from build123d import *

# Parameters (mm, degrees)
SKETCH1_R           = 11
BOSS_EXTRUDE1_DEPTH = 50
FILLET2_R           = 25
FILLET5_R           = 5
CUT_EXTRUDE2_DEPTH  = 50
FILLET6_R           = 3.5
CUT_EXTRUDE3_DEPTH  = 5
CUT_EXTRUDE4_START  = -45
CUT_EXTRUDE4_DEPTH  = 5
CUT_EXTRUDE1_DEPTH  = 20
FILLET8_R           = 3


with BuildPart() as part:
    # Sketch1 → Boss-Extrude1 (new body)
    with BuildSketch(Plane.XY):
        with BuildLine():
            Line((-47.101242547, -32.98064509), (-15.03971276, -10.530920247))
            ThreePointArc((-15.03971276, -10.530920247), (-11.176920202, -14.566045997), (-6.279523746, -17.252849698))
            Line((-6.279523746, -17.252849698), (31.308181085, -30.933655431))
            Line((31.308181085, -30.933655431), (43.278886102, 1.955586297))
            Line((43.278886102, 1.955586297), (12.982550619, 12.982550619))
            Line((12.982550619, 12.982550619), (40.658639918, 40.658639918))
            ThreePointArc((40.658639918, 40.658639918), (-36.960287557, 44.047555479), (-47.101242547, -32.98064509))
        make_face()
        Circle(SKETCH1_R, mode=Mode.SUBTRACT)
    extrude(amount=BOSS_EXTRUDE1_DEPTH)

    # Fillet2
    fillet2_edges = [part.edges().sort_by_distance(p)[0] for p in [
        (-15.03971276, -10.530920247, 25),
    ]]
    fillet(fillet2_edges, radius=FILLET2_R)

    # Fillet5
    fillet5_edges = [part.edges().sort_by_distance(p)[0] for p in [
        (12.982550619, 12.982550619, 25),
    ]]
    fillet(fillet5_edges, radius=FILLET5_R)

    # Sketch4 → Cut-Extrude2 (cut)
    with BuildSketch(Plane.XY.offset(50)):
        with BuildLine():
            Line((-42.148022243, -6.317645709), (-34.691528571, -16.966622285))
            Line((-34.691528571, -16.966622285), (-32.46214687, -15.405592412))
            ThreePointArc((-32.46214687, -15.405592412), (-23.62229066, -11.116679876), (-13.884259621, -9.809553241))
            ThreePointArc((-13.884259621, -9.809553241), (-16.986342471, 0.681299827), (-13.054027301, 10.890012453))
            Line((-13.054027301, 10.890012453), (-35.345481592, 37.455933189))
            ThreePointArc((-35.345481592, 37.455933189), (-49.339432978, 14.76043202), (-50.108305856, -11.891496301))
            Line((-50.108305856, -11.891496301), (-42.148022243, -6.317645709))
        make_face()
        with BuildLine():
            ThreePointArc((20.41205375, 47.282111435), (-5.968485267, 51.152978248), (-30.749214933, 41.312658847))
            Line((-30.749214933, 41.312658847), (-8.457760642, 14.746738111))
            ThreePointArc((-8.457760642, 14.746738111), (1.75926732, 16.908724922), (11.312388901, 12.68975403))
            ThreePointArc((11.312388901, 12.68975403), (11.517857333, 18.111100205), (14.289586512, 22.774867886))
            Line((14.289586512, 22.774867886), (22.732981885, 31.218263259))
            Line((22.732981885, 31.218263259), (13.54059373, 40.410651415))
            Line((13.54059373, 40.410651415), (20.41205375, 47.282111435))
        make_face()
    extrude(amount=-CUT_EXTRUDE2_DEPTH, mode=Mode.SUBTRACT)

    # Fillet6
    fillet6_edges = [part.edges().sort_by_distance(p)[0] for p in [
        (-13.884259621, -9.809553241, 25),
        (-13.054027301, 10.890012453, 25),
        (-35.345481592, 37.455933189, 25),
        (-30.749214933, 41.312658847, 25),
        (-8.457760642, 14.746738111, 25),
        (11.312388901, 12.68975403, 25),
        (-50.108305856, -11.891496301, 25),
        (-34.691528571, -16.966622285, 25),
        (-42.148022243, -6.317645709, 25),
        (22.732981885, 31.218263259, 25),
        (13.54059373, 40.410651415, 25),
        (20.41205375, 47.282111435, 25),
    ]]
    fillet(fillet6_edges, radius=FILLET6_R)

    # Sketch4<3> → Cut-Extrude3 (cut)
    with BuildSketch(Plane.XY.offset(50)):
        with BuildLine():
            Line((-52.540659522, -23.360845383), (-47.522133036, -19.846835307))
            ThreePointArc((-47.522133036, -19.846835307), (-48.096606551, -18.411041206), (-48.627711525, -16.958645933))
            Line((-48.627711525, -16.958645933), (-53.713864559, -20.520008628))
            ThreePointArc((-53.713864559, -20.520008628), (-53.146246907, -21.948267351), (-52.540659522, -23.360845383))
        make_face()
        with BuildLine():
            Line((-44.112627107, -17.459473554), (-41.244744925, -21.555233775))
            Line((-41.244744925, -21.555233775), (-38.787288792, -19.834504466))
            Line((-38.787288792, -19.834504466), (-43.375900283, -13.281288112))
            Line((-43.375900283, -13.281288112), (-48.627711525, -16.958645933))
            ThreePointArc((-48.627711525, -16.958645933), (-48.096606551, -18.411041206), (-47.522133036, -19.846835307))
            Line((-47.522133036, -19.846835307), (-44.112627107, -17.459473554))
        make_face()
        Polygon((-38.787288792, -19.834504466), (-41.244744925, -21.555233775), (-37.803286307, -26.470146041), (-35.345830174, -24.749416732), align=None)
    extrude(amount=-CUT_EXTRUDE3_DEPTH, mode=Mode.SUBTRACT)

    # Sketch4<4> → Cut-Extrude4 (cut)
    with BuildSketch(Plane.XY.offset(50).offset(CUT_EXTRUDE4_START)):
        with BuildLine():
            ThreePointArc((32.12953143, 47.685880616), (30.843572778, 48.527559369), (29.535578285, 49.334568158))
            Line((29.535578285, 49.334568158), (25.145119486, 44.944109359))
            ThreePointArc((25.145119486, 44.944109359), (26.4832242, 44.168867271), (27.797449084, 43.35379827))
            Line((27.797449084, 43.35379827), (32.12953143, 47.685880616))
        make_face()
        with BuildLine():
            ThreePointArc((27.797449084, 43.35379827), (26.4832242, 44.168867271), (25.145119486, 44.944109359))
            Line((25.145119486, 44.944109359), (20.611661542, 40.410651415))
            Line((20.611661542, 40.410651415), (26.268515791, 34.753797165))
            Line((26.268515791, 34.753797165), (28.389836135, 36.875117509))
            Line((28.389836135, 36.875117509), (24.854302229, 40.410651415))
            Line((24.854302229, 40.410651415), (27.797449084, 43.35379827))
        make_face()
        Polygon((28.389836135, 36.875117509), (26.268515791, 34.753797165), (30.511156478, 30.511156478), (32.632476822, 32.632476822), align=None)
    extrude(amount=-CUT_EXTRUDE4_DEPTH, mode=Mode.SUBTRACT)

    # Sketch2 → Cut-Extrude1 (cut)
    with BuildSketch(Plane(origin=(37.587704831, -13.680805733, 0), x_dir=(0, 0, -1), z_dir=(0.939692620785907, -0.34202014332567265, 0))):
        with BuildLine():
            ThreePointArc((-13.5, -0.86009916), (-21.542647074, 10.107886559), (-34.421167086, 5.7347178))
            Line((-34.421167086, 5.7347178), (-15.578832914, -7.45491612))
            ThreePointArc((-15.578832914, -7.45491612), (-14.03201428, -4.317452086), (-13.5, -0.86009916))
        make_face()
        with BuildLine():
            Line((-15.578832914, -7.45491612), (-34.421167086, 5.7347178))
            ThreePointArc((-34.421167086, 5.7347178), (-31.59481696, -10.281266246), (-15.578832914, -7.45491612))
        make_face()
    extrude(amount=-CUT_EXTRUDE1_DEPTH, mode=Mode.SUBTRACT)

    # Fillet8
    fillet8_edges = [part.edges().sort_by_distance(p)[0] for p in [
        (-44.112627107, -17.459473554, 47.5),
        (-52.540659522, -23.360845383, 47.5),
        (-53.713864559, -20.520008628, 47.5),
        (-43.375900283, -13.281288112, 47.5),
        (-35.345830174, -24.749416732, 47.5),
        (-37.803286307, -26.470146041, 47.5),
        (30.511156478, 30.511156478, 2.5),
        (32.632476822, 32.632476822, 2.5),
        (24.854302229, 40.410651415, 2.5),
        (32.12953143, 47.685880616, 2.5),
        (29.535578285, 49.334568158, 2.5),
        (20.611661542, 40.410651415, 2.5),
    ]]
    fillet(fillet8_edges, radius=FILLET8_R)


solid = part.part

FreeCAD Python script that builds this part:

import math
import FreeCAD as App
import Part
import Sketcher
from FreeCAD import Vector
Q = App.Units.Quantity


def edges_at(feature, points):
    """Names of the edges that pass closest to the given points."""
    edges = feature.Shape.Edges
    near = lambda p: min(range(len(edges)), key=lambda i: edges[i].distToShape(Part.Vertex(*p))[0])
    return sorted({f"Edge{near(p) + 1}" for p in points})

doc = App.newDocument("Part")
body = doc.addObject("PartDesign::Body", "Body")

# Sketch on XY plane
sketch1 = body.newObject("Sketcher::SketchObject", "Sketch")
sketch1.AttachmentSupport = (doc.getObject("XY_Plane"), [""])
sketch1.MapMode = "FlatFace"
sketch1.addGeometry([
    Part.LineSegment(Vector(-47, -33, 0), Vector(-15, -11, 0)),  # 0
    Part.ArcOfCircle(Part.Circle(Vector(0, 0, 0), Vector(0, 0, 1), 18), math.radians(-145), math.radians(-110)),  # 1
    Part.LineSegment(Vector(-6, -17, 0), Vector(31, -31, 0)),  # 2
    Part.LineSegment(Vector(31, -31, 0), Vector(43, 2, 0)),  # 3
    Part.LineSegment(Vector(43, 2, 0), Vector(13, 13, 0)),  # 4
    Part.LineSegment(Vector(13, 13, 0), Vector(41, 41, 0)),  # 5
    Part.ArcOfCircle(Part.Circle(Vector(0, 0, 0), Vector(0, 0, 1), 58), math.radians(45), math.radians(215)),  # 6
    Part.Circle(Vector(0, 0, 0), Vector(0, 0, 1), 11),  # 7
], False)
sketch1.addConstraint([
    Sketcher.Constraint("Coincident", 0, 2, 1, 1),
    Sketcher.Constraint("Tangent", 1, 2, 2, 1),
    Sketcher.Constraint("Coincident", 2, 2, 3, 1),
    Sketcher.Constraint("Coincident", 3, 2, 4, 1),
    Sketcher.Constraint("Coincident", 4, 2, 5, 1),
    Sketcher.Constraint("Coincident", 5, 2, 6, 1),
    Sketcher.Constraint("Coincident", 6, 2, 0, 1),
    Sketcher.Constraint("Coincident", 1, 3, -1, 1),
    Sketcher.Constraint("Coincident", 6, 3, -1, 1),
    Sketcher.Constraint("Coincident", 7, 3, -1, 1),
    Sketcher.Constraint("Perpendicular", 2, 3),
    Sketcher.Constraint("Perpendicular", 3, 4),
    Sketcher.Constraint("Equal", 0, 5),
    Sketcher.Constraint("Diameter", 7, 22.0),
    Sketcher.Constraint("Radius", 6, 57.5),
    Sketcher.Constraint("Angle", 0, Q("35 deg")),
    Sketcher.Constraint("Angle", 2, Q("-20 deg")),
    Sketcher.Constraint("Angle", 5, Q("45 deg")),
    Sketcher.Constraint("Distance", 2, 40.0),
    Sketcher.Constraint("Distance", 3, 35.0),
    Sketcher.Constraint("Radius", 1, 18.360099),
    Sketcher.Constraint("DistanceY", 0, 2, -1, 1, 10.53092),
])
pad1 = body.newObject("PartDesign::Pad", "Pad")
pad1.Profile = sketch1
pad1.Length = 50
doc.recompute()

fillet = body.newObject("PartDesign::Fillet", "Fillet")
fillet.Base = (pad1, edges_at(pad1, [(-15.04, -10.531, 25)]))
fillet.Radius = 25
doc.recompute()

fillet2 = body.newObject("PartDesign::Fillet", "Fillet001")
fillet2.Base = (fillet, edges_at(fillet, [(12.983, 12.983, 25)]))
fillet2.Radius = 5

# Sketch on XY plane
sketch2 = body.newObject("Sketcher::SketchObject", "Sketch001")
sketch2.AttachmentSupport = (doc.getObject("XY_Plane"), [""])
sketch2.MapMode = "FlatFace"
sketch2.AttachmentOffset = App.Placement(Vector(0, 0, 50), App.Rotation())
sketch2.addGeometry([
    Part.LineSegment(Vector(-42.1, -6.3, 0), Vector(-34.7, -17, 0)),  # 0
    Part.LineSegment(Vector(-34.7, -17, 0), Vector(-32.5, -15.4, 0)),  # 1
    Part.ArcOfCircle(Part.Circle(Vector(-14.7, -40.8, 0), Vector(0, 0, 1), 31), math.radians(89), math.radians(125)),  # 2
    Part.ArcOfCircle(Part.Circle(Vector(0, 0, 0), Vector(0, 0, 1), 17), math.radians(140), math.radians(215)),  # 3
    Part.LineSegment(Vector(-13.1, 10.9, 0), Vector(-35.3, 37.5, 0)),  # 4
    Part.ArcOfCircle(Part.Circle(Vector(0, 0, 0), Vector(0, 0, 1), 51.5), math.radians(133), math.radians(193)),  # 5
    Part.LineSegment(Vector(-50.1, -11.9, 0), Vector(-42.1, -6.3, 0)),  # 6
    Part.ArcOfCircle(Part.Circle(Vector(0, 0, 0), Vector(0, 0, 1), 51.5), math.radians(67), math.radians(127)),  # 7
    Part.LineSegment(Vector(-30.7, 41.3, 0), Vector(-8.5, 14.7, 0)),  # 8
    Part.ArcOfCircle(Part.Circle(Vector(0, 0, 0), Vector(0, 0, 1), 17), math.radians(48), math.radians(120)),  # 9
    Part.ArcOfCircle(Part.Circle(Vector(22.1, 15, 0), Vector(0, 0, 1), 11), math.radians(135), math.radians(192)),  # 10
    Part.LineSegment(Vector(14.3, 22.8, 0), Vector(22.7, 31.2, 0)),  # 11
    Part.LineSegment(Vector(22.7, 31.2, 0), Vector(13.5, 40.4, 0)),  # 12
    Part.LineSegment(Vector(13.5, 40.4, 0), Vector(20.4, 47.3, 0)),  # 13
], False)
sketch2.addConstraint([
    Sketcher.Constraint("Coincident", 0, 2, 1, 1),
    Sketcher.Constraint("Tangent", 1, 2, 2, 2),
    Sketcher.Constraint("Coincident", 2, 1, 3, 2),
    Sketcher.Constraint("Coincident", 3, 1, 4, 1),
    Sketcher.Constraint("Coincident", 4, 2, 5, 1),
    Sketcher.Constraint("Coincident", 5, 2, 6, 1),
    Sketcher.Constraint("Coincident", 6, 2, 0, 1),
    Sketcher.Constraint("Coincident", 7, 2, 8, 1),
    Sketcher.Constraint("Coincident", 8, 2, 9, 2),
    Sketcher.Constraint("Coincident", 9, 1, 10, 2),
    Sketcher.Constraint("Tangent", 10, 1, 11, 1),
    Sketcher.Constraint("Coincident", 11, 2, 12, 1),
    Sketcher.Constraint("Coincident", 12, 2, 13, 1),
    Sketcher.Constraint("Coincident", 13, 2, 7, 1),
    Sketcher.Constraint("Coincident", 3, 3, -1, 1),
    Sketcher.Constraint("Coincident", 5, 3, -1, 1),
    Sketcher.Constraint("Coincident", 7, 3, -1, 1),
    Sketcher.Constraint("Coincident", 9, 3, -1, 1),
    Sketcher.Constraint("Equal", 5, 7),
    Sketcher.Constraint("Equal", 3, 9),
    Sketcher.Constraint("Perpendicular", 0, 1),
    Sketcher.Constraint("Parallel", 1, 6),
    Sketcher.Constraint("Parallel", 4, 8),
    Sketcher.Constraint("Perpendicular", 11, 12),
    Sketcher.Constraint("Perpendicular", 12, 13),
    Sketcher.Constraint("Equal", 4, 8),
    Sketcher.Constraint("Equal", 0, 12),
    Sketcher.Constraint("Equal", 6, 13),
    Sketcher.Constraint("Radius", 2, 31.0),
    Sketcher.Constraint("Radius", 3, 17.0),
    Sketcher.Constraint("Radius", 10, 11.0),
    Sketcher.Constraint("Radius", 5, 51.5),
    Sketcher.Constraint("Angle", 0, Q("-55 deg")),
    Sketcher.Constraint("Angle", 4, Q("130 deg")),
    Sketcher.Constraint("Angle", 11, Q("45 deg")),
    Sketcher.Constraint("Distance", 0, 13.0),
    Sketcher.Constraint("DistanceY", 2, 3, 10, 3, 55.795999),
    Sketcher.Constraint("Distance", 6, 9.717712),
    Sketcher.Constraint("DistanceX", -1, 1, 10, 3, 22.067761),
    Sketcher.Constraint("DistanceX", 0, 2, -1, 1, 34.691529),
    Sketcher.Constraint("DistanceX", 2, 1, -1, 1, 13.88426),
    Sketcher.Constraint("DistanceX", 4, 2, -1, 1, 35.345482),
])
pocket1 = body.newObject("PartDesign::Pocket", "Pocket")
pocket1.Profile = sketch2
pocket1.Length = 50
doc.recompute()

fillet3 = body.newObject("PartDesign::Fillet", "Fillet002")
fillet3.Base = (pocket1, edges_at(pocket1, [
    (-13.884, -9.81, 25),
    (-13.054, 10.89, 25),
    (-35.345, 37.456, 25),
    (-30.749, 41.313, 25),
    (-8.458, 14.747, 25),
    (11.312, 12.69, 25),
    (-50.108, -11.891, 25),
    (-34.692, -16.967, 25),
    (-42.148, -6.318, 25),
    (22.733, 31.218, 25),
    (13.541, 40.411, 25),
    (20.412, 47.282, 25),
]))
fillet3.Radius = 3.5

# Sketch on XY plane
sketch3 = body.newObject("Sketcher::SketchObject", "Sketch002")
sketch3.AttachmentSupport = (doc.getObject("XY_Plane"), [""])
sketch3.MapMode = "FlatFace"
sketch3.AttachmentOffset = App.Placement(Vector(0, 0, 50), App.Rotation())
sketch3.addGeometry([
    Part.LineSegment(Vector(-52.5, -23.4, 0), Vector(-47.5, -19.8, 0)),  # 0
    Part.LineSegment(Vector(-47.5, -19.8, 0), Vector(-44.1, -17.5, 0)),  # 1
    Part.LineSegment(Vector(-44.1, -17.5, 0), Vector(-41.2, -21.6, 0)),  # 2
    Part.LineSegment(Vector(-41.2, -21.6, 0), Vector(-37.8, -26.5, 0)),  # 3
    Part.LineSegment(Vector(-37.8, -26.5, 0), Vector(-35.3, -24.7, 0)),  # 4
    Part.LineSegment(Vector(-35.3, -24.7, 0), Vector(-38.8, -19.8, 0)),  # 5
    Part.LineSegment(Vector(-38.8, -19.8, 0), Vector(-43.4, -13.3, 0)),  # 6
    Part.LineSegment(Vector(-43.4, -13.3, 0), Vector(-48.6, -17, 0)),  # 7
    Part.LineSegment(Vector(-48.6, -17, 0), Vector(-53.7, -20.5, 0)),  # 8
    Part.ArcOfCircle(Part.Circle(Vector(0, 0, 0), Vector(0, 0, 1), 57.5), math.radians(-159.09), math.radians(-156.03)),  # 9
], False)
sketch3.addConstraint([
    Sketcher.Constraint("Coincident", 0, 2, 1, 1),
    Sketcher.Constraint("Coincident", 1, 2, 2, 1),
    Sketcher.Constraint("Coincident", 2, 2, 3, 1),
    Sketcher.Constraint("Coincident", 3, 2, 4, 1),
    Sketcher.Constraint("Coincident", 4, 2, 5, 1),
    Sketcher.Constraint("Coincident", 5, 2, 6, 1),
    Sketcher.Constraint("Coincident", 6, 2, 7, 1),
    Sketcher.Constraint("Coincident", 7, 2, 8, 1),
    Sketcher.Constraint("Coincident", 8, 2, 9, 1),
    Sketcher.Constraint("Coincident", 9, 2, 0, 1),
    Sketcher.Constraint("Coincident", 9, 3, -1, 1),
    Sketcher.Constraint("Parallel", 0, 1),
    Sketcher.Constraint("Perpendicular", 1, 2),
    Sketcher.Constraint("Parallel", 2, 3),
    Sketcher.Constraint("Perpendicular", 3, 4),
    Sketcher.Constraint("Perpendicular", 4, 5),
    Sketcher.Constraint("Parallel", 5, 6),
    Sketcher.Constraint("Perpendicular", 6, 7),
    Sketcher.Constraint("Parallel", 7, 8),
    Sketcher.Constraint("Equal", 3, 5),
    Sketcher.Constraint("Radius", 9, 57.499999),
    Sketcher.Constraint("Angle", 0, Q("35 deg")),
    Sketcher.Constraint("Distance", 2, 5.0),
    Sketcher.Constraint("Distance", 3, 6.0),
    Sketcher.Constraint("Distance", 4, 3.0),
    Sketcher.Constraint("Distance", 6, 8.0),
    Sketcher.Constraint("DistanceX", 6, 2, -1, 1, 43.3759),
    Sketcher.Constraint("DistanceY", 2, 2, 0, 2, 1.708398),
    Sketcher.Constraint("DistanceY", 9, 2, 7, 2, 6.402199),
    Sketcher.Constraint("Distance", 0, 6.12649),
])
pocket2 = body.newObject("PartDesign::Pocket", "Pocket001")
pocket2.Profile = sketch3
pocket2.Length = 5

# Sketch on XY plane
sketch4 = body.newObject("Sketcher::SketchObject", "Sketch003")
sketch4.AttachmentSupport = (doc.getObject("XY_Plane"), [""])
sketch4.MapMode = "FlatFace"
sketch4.AttachmentOffset = App.Placement(Vector(0, 0, 5), App.Rotation())
sketch4.addGeometry([
    Part.ArcOfCircle(Part.Circle(Vector(0, 0, 0), Vector(0, 0, 1), 57.5), math.radians(56.03), math.radians(59.09)),  # 0
    Part.LineSegment(Vector(29.5, 49.3, 0), Vector(20.6, 40.4, 0)),  # 1
    Part.LineSegment(Vector(20.6, 40.4, 0), Vector(26.3, 34.8, 0)),  # 2
    Part.LineSegment(Vector(26.3, 34.8, 0), Vector(30.5, 30.5, 0)),  # 3
    Part.LineSegment(Vector(30.5, 30.5, 0), Vector(32.6, 32.6, 0)),  # 4
    Part.LineSegment(Vector(32.6, 32.6, 0), Vector(24.9, 40.4, 0)),  # 5
    Part.LineSegment(Vector(24.9, 40.4, 0), Vector(32.1, 47.7, 0)),  # 6
], False)
sketch4.addConstraint([
    Sketcher.Constraint("Coincident", 0, 2, 1, 1),
    Sketcher.Constraint("Coincident", 1, 2, 2, 1),
    Sketcher.Constraint("Coincident", 2, 2, 3, 1),
    Sketcher.Constraint("Coincident", 3, 2, 4, 1),
    Sketcher.Constraint("Coincident", 4, 2, 5, 1),
    Sketcher.Constraint("Coincident", 5, 2, 6, 1),
    Sketcher.Constraint("Coincident", 6, 2, 0, 1),
    Sketcher.Constraint("Coincident", 0, 3, -1, 1),
    Sketcher.Constraint("Perpendicular", 1, 2),
    Sketcher.Constraint("Parallel", 2, 3),
    Sketcher.Constraint("Perpendicular", 3, 4),
    Sketcher.Constraint("Perpendicular", 4, 5),
    Sketcher.Constraint("Perpendicular", 5, 6),
    Sketcher.Constraint("Horizontal", 1, 2, 5, 2),
    Sketcher.Constraint("Radius", 0, 57.499999),
    Sketcher.Constraint("Angle", 1, Q("-135 deg")),
    Sketcher.Constraint("Distance", 2, 8.0),
    Sketcher.Constraint("Distance", 3, 6.0),
    Sketcher.Constraint("Distance", 4, 3.0),
    Sketcher.Constraint("DistanceX", 0, 2, 4, 2, 3.096899),
    Sketcher.Constraint("DistanceX", -1, 1, 0, 2, 29.535578),
])
pocket3 = body.newObject("PartDesign::Pocket", "Pocket002")
pocket3.Profile = sketch4
pocket3.Length = 5

# Sketch on an angled plane
sketch5 = body.newObject("Sketcher::SketchObject", "Sketch004")
sketch5.Placement = App.Placement(Vector(37.587705, -13.680806, 0), App.Rotation(Vector(0, 0, -1), Vector(0.342020143, 0.939692621, 0), Vector(0.939692621, -0.342020143, 0), "ZXY"))
sketch5.addGeometry([
    Part.ArcOfCircle(Part.Circle(Vector(-25, -1, 0), Vector(0, 0, 1), 12), math.radians(0), math.radians(145)),
    Part.ArcOfCircle(Part.Circle(Vector(-25, -1, 0), Vector(0, 0, 1), 12), math.radians(145), math.radians(325)),
    Part.ArcOfCircle(Part.Circle(Vector(-25, -1, 0), Vector(0, 0, 1), 11), math.radians(-35), math.radians(0)),
], False)
sketch5.addConstraint([
    Sketcher.Constraint("Tangent", 0, 2, 1, 1),
    Sketcher.Constraint("Tangent", 1, 2, 2, 1),
    Sketcher.Constraint("Tangent", 2, 2, 0, 1),
    Sketcher.Constraint("Horizontal", 1, 3, 2, 2),
    Sketcher.Constraint("Radius", 0, 11.5),
    Sketcher.Constraint("DistanceX", 0, 3, -1, 1, 25.0),
    Sketcher.Constraint("DistanceY", 0, 3, -1, 1, 0.860099),
    Sketcher.Constraint("DistanceX", 0, 2, -1, 1, 34.421167),
    Sketcher.Constraint("DistanceX", 1, 2, -1, 1, 15.578833),
])
pocket4 = body.newObject("PartDesign::Pocket", "Pocket003")
pocket4.Profile = sketch5
pocket4.Length = 20
doc.recompute()

fillet4 = body.newObject("PartDesign::Fillet", "Fillet003")
fillet4.Base = (pocket4, edges_at(pocket4, [
    (-44.113, -17.459, 47.5),
    (-52.541, -23.361, 47.5),
    (-53.714, -20.52, 47.5),
    (-43.376, -13.281, 47.5),
    (-35.346, -24.749, 47.5),
    (-37.803, -26.47, 47.5),
    (30.511, 30.511, 2.5),
    (32.632, 32.632, 2.5),
    (24.854, 40.411, 2.5),
    (32.13, 47.686, 2.5),
    (29.536, 49.335, 2.5),
    (20.612, 40.411, 2.5),
]))
fillet4.Radius = 3

doc.recompute()
